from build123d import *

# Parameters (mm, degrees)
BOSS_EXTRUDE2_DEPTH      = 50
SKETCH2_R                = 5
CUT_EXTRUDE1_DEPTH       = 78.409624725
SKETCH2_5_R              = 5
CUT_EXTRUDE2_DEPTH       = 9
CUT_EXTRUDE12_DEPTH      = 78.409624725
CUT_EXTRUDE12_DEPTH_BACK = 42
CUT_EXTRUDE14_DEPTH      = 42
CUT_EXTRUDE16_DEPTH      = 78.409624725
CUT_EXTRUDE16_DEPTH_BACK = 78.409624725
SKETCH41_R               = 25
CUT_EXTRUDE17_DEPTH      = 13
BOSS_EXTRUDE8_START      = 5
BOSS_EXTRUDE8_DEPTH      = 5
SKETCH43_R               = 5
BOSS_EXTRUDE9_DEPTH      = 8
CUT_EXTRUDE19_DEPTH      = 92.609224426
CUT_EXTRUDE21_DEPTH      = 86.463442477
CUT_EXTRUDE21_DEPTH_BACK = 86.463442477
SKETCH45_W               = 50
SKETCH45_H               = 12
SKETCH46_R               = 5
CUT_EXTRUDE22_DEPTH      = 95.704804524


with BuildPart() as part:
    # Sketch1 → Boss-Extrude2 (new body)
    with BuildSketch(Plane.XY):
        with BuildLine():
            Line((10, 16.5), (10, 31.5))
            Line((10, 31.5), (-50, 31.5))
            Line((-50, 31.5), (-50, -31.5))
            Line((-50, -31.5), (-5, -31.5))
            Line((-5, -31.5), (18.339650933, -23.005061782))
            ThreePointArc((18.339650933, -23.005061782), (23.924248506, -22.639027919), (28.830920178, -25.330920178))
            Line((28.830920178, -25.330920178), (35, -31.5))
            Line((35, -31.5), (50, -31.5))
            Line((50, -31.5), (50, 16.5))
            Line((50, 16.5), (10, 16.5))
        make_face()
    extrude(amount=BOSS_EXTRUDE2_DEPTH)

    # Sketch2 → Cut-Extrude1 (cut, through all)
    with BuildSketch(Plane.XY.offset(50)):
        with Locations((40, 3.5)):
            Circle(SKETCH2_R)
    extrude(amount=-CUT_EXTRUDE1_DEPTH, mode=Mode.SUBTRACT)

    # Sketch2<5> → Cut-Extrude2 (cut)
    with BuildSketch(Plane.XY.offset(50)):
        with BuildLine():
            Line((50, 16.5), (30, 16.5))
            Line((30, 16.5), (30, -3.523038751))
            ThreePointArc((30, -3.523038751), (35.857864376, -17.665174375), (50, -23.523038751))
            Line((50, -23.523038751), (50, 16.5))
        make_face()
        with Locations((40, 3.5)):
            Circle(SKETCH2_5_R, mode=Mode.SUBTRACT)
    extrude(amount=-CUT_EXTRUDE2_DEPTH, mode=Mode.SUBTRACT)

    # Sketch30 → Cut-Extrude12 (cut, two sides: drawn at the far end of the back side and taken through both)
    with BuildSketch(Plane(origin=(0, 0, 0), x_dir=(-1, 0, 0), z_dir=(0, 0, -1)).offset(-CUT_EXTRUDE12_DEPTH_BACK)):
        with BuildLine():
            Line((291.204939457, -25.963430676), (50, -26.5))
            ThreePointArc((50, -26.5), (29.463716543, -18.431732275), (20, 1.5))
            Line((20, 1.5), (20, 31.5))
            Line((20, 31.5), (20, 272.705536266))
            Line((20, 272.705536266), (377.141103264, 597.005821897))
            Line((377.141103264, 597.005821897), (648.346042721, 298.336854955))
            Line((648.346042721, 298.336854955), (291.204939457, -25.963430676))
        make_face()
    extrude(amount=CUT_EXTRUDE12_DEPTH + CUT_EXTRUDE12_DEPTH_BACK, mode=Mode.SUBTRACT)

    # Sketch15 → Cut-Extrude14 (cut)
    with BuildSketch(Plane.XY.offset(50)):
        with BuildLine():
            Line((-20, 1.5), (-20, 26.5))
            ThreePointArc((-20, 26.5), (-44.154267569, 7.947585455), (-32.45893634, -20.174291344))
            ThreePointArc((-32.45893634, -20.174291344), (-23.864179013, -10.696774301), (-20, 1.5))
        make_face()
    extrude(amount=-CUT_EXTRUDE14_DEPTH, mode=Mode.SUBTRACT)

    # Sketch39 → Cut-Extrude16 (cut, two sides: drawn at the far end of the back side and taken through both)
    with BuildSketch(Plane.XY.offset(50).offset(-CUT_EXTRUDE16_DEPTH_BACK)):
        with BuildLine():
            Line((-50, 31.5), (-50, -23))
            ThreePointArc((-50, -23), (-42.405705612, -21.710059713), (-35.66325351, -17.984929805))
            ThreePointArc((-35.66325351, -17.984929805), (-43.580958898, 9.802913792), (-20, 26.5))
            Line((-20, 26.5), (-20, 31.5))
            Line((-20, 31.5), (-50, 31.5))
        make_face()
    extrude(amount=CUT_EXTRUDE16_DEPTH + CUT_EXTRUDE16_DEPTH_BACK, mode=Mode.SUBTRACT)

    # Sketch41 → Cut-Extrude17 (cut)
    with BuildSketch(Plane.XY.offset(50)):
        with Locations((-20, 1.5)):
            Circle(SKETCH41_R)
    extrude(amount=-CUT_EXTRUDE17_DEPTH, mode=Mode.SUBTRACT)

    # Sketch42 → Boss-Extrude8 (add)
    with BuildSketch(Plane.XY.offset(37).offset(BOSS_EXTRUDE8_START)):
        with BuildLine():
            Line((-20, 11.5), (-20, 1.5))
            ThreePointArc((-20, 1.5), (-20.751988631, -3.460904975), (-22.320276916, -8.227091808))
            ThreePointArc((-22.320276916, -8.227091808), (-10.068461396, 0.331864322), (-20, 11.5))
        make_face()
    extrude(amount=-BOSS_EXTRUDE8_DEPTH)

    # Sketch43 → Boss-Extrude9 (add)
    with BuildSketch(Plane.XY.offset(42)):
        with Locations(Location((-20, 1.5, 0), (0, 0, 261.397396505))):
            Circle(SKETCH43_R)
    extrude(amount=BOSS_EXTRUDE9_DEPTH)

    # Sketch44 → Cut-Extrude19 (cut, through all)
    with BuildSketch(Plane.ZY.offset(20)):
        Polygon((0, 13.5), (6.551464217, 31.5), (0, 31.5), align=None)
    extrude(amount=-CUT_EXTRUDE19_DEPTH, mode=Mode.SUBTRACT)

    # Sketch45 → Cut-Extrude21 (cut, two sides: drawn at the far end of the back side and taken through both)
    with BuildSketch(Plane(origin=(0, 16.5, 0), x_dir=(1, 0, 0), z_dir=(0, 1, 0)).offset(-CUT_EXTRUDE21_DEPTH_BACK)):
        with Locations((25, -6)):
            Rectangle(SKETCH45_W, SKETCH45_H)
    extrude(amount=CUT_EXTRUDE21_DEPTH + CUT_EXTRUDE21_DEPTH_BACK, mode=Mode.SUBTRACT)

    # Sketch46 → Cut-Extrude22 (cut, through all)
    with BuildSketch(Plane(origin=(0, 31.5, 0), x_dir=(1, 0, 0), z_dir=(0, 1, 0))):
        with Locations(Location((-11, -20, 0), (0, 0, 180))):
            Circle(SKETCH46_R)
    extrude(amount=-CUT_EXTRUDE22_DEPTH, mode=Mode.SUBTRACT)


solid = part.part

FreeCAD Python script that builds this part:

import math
import FreeCAD as App
import Part
import Sketcher

V = App.Vector
Q = App.Units.Quantity


def add_polygon(sketch, points):
    """Adds a closed chain of lines whose ends are joined by coincident constraints."""
    first, n = sketch.GeometryCount, len(points)
    for a, b in zip(points, points[1:] + points[:1]):
        sketch.addGeometry(Part.LineSegment(App.Vector(*a, 0), App.Vector(*b, 0)), False)
    for i in range(n):
        sketch.addConstraint(Sketcher.Constraint("Coincident", first + i, 2, first + (i + 1) % n, 1))

doc = App.newDocument("Part")
body = doc.addObject("PartDesign::Body", "Body")

# Sketch on XY plane
sketch1 = doc.addObject("Sketcher::SketchObject", "Sketch")
body.addObject(sketch1)
sketch1.AttachmentSupport = (doc.XY_Plane, [""])
sketch1.MapMode = "FlatFace"
sketch1.addGeometry([
    Part.LineSegment(V(10, 16.5, 0), V(10, 31.5, 0)),  # 0
    Part.LineSegment(V(10, 31.5, 0), V(-50, 31.5, 0)),  # 1
    Part.LineSegment(V(-50, 31.5, 0), V(-50, -31.5, 0)),  # 2
    Part.LineSegment(V(-50, -31.5, 0), V(-5, -31.5, 0)),  # 3
    Part.LineSegment(V(-5, -31.5, 0), V(18.339651, -23.005062, 0)),  # 4
    Part.ArcOfCircle(Part.Circle(V(21.759852, -32.401988, 0), V(0, 0, 1), 10), math.radians(45), math.radians(110)),  # 5
    Part.LineSegment(V(28.83092, -25.33092, 0), V(35, -31.5, 0)),  # 6
    Part.LineSegment(V(35, -31.5, 0), V(50, -31.5, 0)),  # 7
    Part.LineSegment(V(50, -31.5, 0), V(50, 16.5, 0)),  # 8
    Part.LineSegment(V(50, 16.5, 0), V(10, 16.5, 0)),  # 9
], False)
sketch1.addConstraint([
    Sketcher.Constraint("Coincident", 0, 2, 1, 1),
    Sketcher.Constraint("Coincident", 1, 2, 2, 1),
    Sketcher.Constraint("Coincident", 2, 2, 3, 1),
    Sketcher.Constraint("Coincident", 3, 2, 4, 1),
    Sketcher.Constraint("Tangent", 4, 2, 5, 2),
    Sketcher.Constraint("Tangent", 5, 1, 6, 1),
    Sketcher.Constraint("Coincident", 6, 2, 7, 1),
    Sketcher.Constraint("Coincident", 7, 2, 8, 1),
    Sketcher.Constraint("Coincident", 8, 2, 9, 1),
    Sketcher.Constraint("Coincident", 9, 2, 0, 1),
    Sketcher.Constraint("Vertical", 0),
    Sketcher.Constraint("Horizontal", 1),
    Sketcher.Constraint("Vertical", 2),
    Sketcher.Constraint("Horizontal", 3),
    Sketcher.Constraint("Horizontal", 7),
    Sketcher.Constraint("Vertical", 8),
    Sketcher.Constraint("Horizontal", 9),
    Sketcher.Constraint("Symmetric", 1, 2, 7, 2, -1, 1),
    Sketcher.Constraint("Horizontal", 3, 2, 6, 2),
    Sketcher.Constraint("Equal", 7, 0),
    Sketcher.Constraint("Radius", 5, 10.0),
    Sketcher.Constraint("DistanceX", 1, 2, 1, 1, 60.0),
    Sketcher.Constraint("DistanceX", 3, 1, 3, 2, 45.0),
    Sketcher.Constraint("DistanceX", 7, 1, 7, 2, 15.0),
    Sketcher.Constraint("DistanceX", 9, 2, 9, 1, 40.0),
    Sketcher.Constraint("DistanceY", 2, 2, 2, 1, 63.0),
    Sketcher.Constraint("Angle", 4, Q("20 deg")),
    Sketcher.Constraint("Angle", 6, Q("-45 deg")),
])
pad1 = doc.addObject("PartDesign::Pad", "Pad")
body.addObject(pad1)
pad1.Profile = sketch1
pad1.Length = 50

# Sketch on XY plane
sketch2 = doc.addObject("Sketcher::SketchObject", "Sketch001")
body.addObject(sketch2)
sketch2.AttachmentSupport = (doc.XY_Plane, [""])
sketch2.MapMode = "FlatFace"
sketch2.AttachmentOffset = App.Placement(V(0, 0, 50), App.Rotation())
sketch2.addGeometry(Part.Circle(V(40, 3.5, 0), V(0, 0, 1), 5), False)
sketch2.addConstraint([
    Sketcher.Constraint("Diameter", 0, 10.0),
    Sketcher.Constraint("DistanceX", -1, 1, 0, 3, 40.0),
    Sketcher.Constraint("DistanceY", -1, 1, 0, 3, 3.5),
])
pocket1 = doc.addObject("PartDesign::Pocket", "Pocket")
body.addObject(pocket1)
pocket1.Profile = sketch2
pocket1.Type = "ThroughAll"

# Sketch on XY plane
sketch3 = doc.addObject("Sketcher::SketchObject", "Sketch002")
body.addObject(sketch3)
sketch3.AttachmentSupport = (doc.XY_Plane, [""])
sketch3.MapMode = "FlatFace"
sketch3.AttachmentOffset = App.Placement(V(0, 0, 50), App.Rotation())
sketch3.addGeometry([
    Part.LineSegment(V(50, 16.5, 0), V(30, 16.5, 0)),  # 0
    Part.LineSegment(V(30, 16.5, 0), V(30, -3.523039, 0)),  # 1
    Part.ArcOfCircle(Part.Circle(V(50, -3.523039, 0), V(0, 0, 1), 20), math.radians(180), math.radians(270)),  # 2
    Part.LineSegment(V(50, -23.523039, 0), V(50, 16.5, 0)),  # 3
    Part.Circle(V(40, 3.5, 0), V(0, 0, 1), 5),  # 4
], False)
sketch3.addConstraint([
    Sketcher.Constraint("Coincident", 0, 2, 1, 1),
    Sketcher.Constraint("Tangent", 1, 2, 2, 1),
    Sketcher.Constraint("Coincident", 2, 2, 3, 1),
    Sketcher.Constraint("Coincident", 3, 2, 0, 1),
    Sketcher.Constraint("Horizontal", 0),
    Sketcher.Constraint("Vertical", 1),
    Sketcher.Constraint("Vertical", 3),
    Sketcher.Constraint("Diameter", 4, 10.0),
    Sketcher.Constraint("Radius", 2, 20.0),
    Sketcher.Constraint("DistanceX", 0, 2, 0, 1, 20.0),
    Sketcher.Constraint("DistanceX", -1, 1, 2, 3, 50.0),
    Sketcher.Constraint("DistanceX", -1, 1, 4, 3, 40.0),
    Sketcher.Constraint("DistanceY", 4, 3, 0, 2, 13.0),
    Sketcher.Constraint("DistanceY", -1, 1, 4, 3, 3.5),
    Sketcher.Constraint("DistanceY", 1, 2, 1, 1, 20.023039),
])
pocket2 = doc.addObject("PartDesign::Pocket", "Pocket001")
body.addObject(pocket2)
pocket2.Profile = sketch3
pocket2.Length = 9

# Sketch on XY plane
sketch4 = doc.addObject("Sketcher::SketchObject", "Sketch003")
body.addObject(sketch4)
sketch4.AttachmentSupport = (doc.XY_Plane, [""])
sketch4.MapMode = "FlatFace"
sketch4.addGeometry([
    Part.LineSegment(V(-50, -26.5, 0), V(-291.204939, -25.963431, 0)),  # 0
    Part.LineSegment(V(-291.204939, -25.963431, 0), V(-648.346043, 298.336855, 0)),  # 1
    Part.LineSegment(V(-648.346043, 298.336855, 0), V(-377.141103, 597.005822, 0)),  # 2
    Part.LineSegment(V(-377.141103, 597.005822, 0), V(-20, 272.705536, 0)),  # 3
    Part.LineSegment(V(-20, 272.705536, 0), V(-20, 1.5, 0)),  # 4
    Part.ArcOfCircle(Part.Circle(V(-49.933264, 3.499926, 0), V(0, 0, 1), 30), math.radians(-90.127456), math.radians(-3.822412)),  # 5
], False)
sketch4.addConstraint([
    Sketcher.Constraint("Coincident", 0, 2, 1, 1),
    Sketcher.Constraint("Coincident", 1, 2, 2, 1),
    Sketcher.Constraint("Coincident", 2, 2, 3, 1),
    Sketcher.Constraint("Coincident", 3, 2, 4, 1),
    Sketcher.Constraint("Coincident", 4, 2, 5, 2),
    Sketcher.Constraint("Tangent", 5, 1, 0, 1),
    Sketcher.Constraint("Vertical", 4),
    Sketcher.Constraint("Perpendicular", 1, 2),
    Sketcher.Constraint("Perpendicular", 2, 3),
    Sketcher.Constraint("Equal", 1, 3),
    Sketcher.Constraint("Radius", 5, 30.0),
    Sketcher.Constraint("DistanceX", 3, 2, -1, 1, 20.0),
    Sketcher.Constraint("DistanceX", 5, 1, -1, 1, 50.0),
    Sketcher.Constraint("DistanceY", 5, 1, 4, 2, 28.0),
    Sketcher.Constraint("DistanceY", -1, 1, 4, 2, 1.5),
    Sketcher.Constraint("DistanceY", 4, 2, 4, 1, 271.205536),
    Sketcher.Constraint("DistanceX", 0, 2, -1, 1, 291.204939),
    Sketcher.Constraint("DistanceY", -1, 1, 2, 2, 597.005822),
])
pocket3 = doc.addObject("PartDesign::Pocket", "Pocket002")
body.addObject(pocket3)
pocket3.Profile = sketch4
pocket3.Type = "TwoLengths"
pocket3.Length = 78.409625
pocket3.Length2 = 42

# Sketch on XY plane
sketch5 = doc.addObject("Sketcher::SketchObject", "Sketch004")
body.addObject(sketch5)
sketch5.AttachmentSupport = (doc.XY_Plane, [""])
sketch5.MapMode = "FlatFace"
sketch5.AttachmentOffset = App.Placement(V(0, 0, 50), App.Rotation())
sketch5.addGeometry([
    Part.LineSegment(V(-20, 1.5, 0), V(-20, 26.5, 0)),
    Part.ArcOfCircle(Part.Circle(V(-20, 1.5, 0), V(0, 0, 1), 25), math.radians(90), math.radians(240.108611)),
    Part.ArcOfCircle(Part.Circle(V(-49.873329, 4.253949, 0), V(0, 0, 1), 30), math.radians(-54.515708), math.radians(-5.267071)),
], False)
sketch5.addConstraint([
    Sketcher.Constraint("Coincident", 0, 2, 1, 1),
    Sketcher.Constraint("Coincident", 1, 2, 2, 1),
    Sketcher.Constraint("Coincident", 2, 2, 0, 1),
    Sketcher.Constraint("Vertical", 0),
    Sketcher.Constraint("Coincident", 2, 2, 1, 3),
    Sketcher.Constraint("Radius", 1, 25.0),
    Sketcher.Constraint("Radius", 2, 30.0),
    Sketcher.Constraint("DistanceX", 1, 3, -1, 1, 20.0),
    Sketcher.Constraint("DistanceY", -1, 1, 1, 3, 1.5),
    Sketcher.Constraint("DistanceX", 2, 3, -1, 1, 49.873329),
])
pocket4 = doc.addObject("PartDesign::Pocket", "Pocket003")
body.addObject(pocket4)
pocket4.Profile = sketch5
pocket4.Length = 42

# Sketch on XY plane
sketch6 = doc.addObject("Sketcher::SketchObject", "Sketch005")
body.addObject(sketch6)
sketch6.AttachmentSupport = (doc.XY_Plane, [""])
sketch6.MapMode = "FlatFace"
sketch6.AttachmentOffset = App.Placement(V(0, 0, 50), App.Rotation())
sketch6.addGeometry([
    Part.LineSegment(V(-50, 31.5, 0), V(-50, -23, 0)),  # 0
    Part.ArcOfCircle(Part.Circle(V(-50, 0, 0), V(0, 0, 1), 23), math.radians(-90), math.radians(-51.439783)),  # 1
    Part.ArcOfCircle(Part.Circle(V(-20, 1.5, 0), V(0, 0, 1), 25), math.radians(90), math.radians(231.205416)),  # 2
    Part.LineSegment(V(-20, 26.5, 0), V(-20, 31.5, 0)),  # 3
    Part.LineSegment(V(-20, 31.5, 0), V(-50, 31.5, 0)),  # 4
], False)
sketch6.addConstraint([
    Sketcher.Constraint("Coincident", 0, 2, 1, 1),
    Sketcher.Constraint("Coincident", 1, 2, 2, 2),
    Sketcher.Constraint("Coincident", 2, 1, 3, 1),
    Sketcher.Constraint("Coincident", 3, 2, 4, 1),
    Sketcher.Constraint("Coincident", 4, 2, 0, 1),
    Sketcher.Constraint("Vertical", 0),
    Sketcher.Constraint("Vertical", 3),
    Sketcher.Constraint("Horizontal", 4),
    Sketcher.Constraint("PointOnObject", 1, 3, -1),
    Sketcher.Constraint("Vertical", 1, 3, 0, 2),
    Sketcher.Constraint("Radius", 1, 23.0),
    Sketcher.Constraint("Radius", 2, 25.0),
    Sketcher.Constraint("DistanceX", 4, 2, 4, 1, 30.0),
    Sketcher.Constraint("DistanceY", 3, 1, 3, 2, 5.0),
    Sketcher.Constraint("DistanceY", 0, 2, 0, 1, 54.5),
    Sketcher.Constraint("DistanceX", 1, 3, -1, 1, 50.0),
    Sketcher.Constraint("DistanceX", 2, 3, -1, 1, 20.0),
])
pocket5 = doc.addObject("PartDesign::Pocket", "Pocket004")
body.addObject(pocket5)
pocket5.Profile = sketch6
pocket5.Type = "ThroughAll"
pocket5.Midplane = True

# Sketch on XY plane
sketch7 = doc.addObject("Sketcher::SketchObject", "Sketch006")
body.addObject(sketch7)
sketch7.AttachmentSupport = (doc.XY_Plane, [""])
sketch7.MapMode = "FlatFace"
sketch7.AttachmentOffset = App.Placement(V(0, 0, 50), App.Rotation())
sketch7.addGeometry(Part.Circle(V(-20, 1.5, 0), V(0, 0, 1), 25), False)
sketch7.addConstraint([
    Sketcher.Constraint("Diameter", 0, 50.0),
    Sketcher.Constraint("DistanceX", 0, 3, -1, 1, 20.0),
    Sketcher.Constraint("DistanceY", -1, 1, 0, 3, 1.5),
])
pocket6 = doc.addObject("PartDesign::Pocket", "Pocket005")
body.addObject(pocket6)
pocket6.Profile = sketch7
pocket6.Length = 13

# Sketch on XY plane
sketch8 = doc.addObject("Sketcher::SketchObject", "Sketch007")
body.addObject(sketch8)
sketch8.AttachmentSupport = (doc.XY_Plane, [""])
sketch8.MapMode = "FlatFace"
sketch8.AttachmentOffset = App.Placement(V(0, 0, 42), App.Rotation())
sketch8.addGeometry([
    Part.LineSegment(V(-20, 11.5, 0), V(-20, 1.5, 0)),
    Part.ArcOfCircle(Part.Circle(V(-49.933264, 3.499926, 0), V(0, 0, 1), 30), math.radians(-23.010548), math.radians(-3.822412)),
    Part.ArcOfCircle(Part.Circle(V(-20, 1.5, 0), V(0, 0, 1), 10), math.radians(-103.41648), math.radians(90)),
], False)
sketch8.addConstraint([
    Sketcher.Constraint("Coincident", 0, 2, 1, 2),
    Sketcher.Constraint("Coincident", 1, 1, 2, 1),
    Sketcher.Constraint("Coincident", 2, 2, 0, 1),
    Sketcher.Constraint("Vertical", 0),
    Sketcher.Constraint("Coincident", 0, 2, 2, 3),
    Sketcher.Constraint("Radius", 1, 30.0),
    Sketcher.Constraint("Radius", 2, 10.0),
    Sketcher.Constraint("DistanceX", 2, 3, -1, 1, 20.0),
    Sketcher.Constraint("DistanceY", -1, 1, 2, 3, 1.5),
    Sketcher.Constraint("DistanceY", 1, 1, -1, 1, 8.227092),
])
pad2 = doc.addObject("PartDesign::Pad", "Pad001")
body.addObject(pad2)
pad2.Profile = sketch8
pad2.Length = 5
pad2.Reversed = True

# Sketch on XY plane
sketch9 = doc.addObject("Sketcher::SketchObject", "Sketch008")
body.addObject(sketch9)
sketch9.AttachmentSupport = (doc.XY_Plane, [""])
sketch9.MapMode = "FlatFace"
sketch9.AttachmentOffset = App.Placement(V(0, 0, 42), App.Rotation())
sketch9.addGeometry(Part.Circle(V(-20, 1.5, 0), V(0, 0, 1), 5), False)
sketch9.addConstraint([
    Sketcher.Constraint("Diameter", 0, 10.0),
    Sketcher.Constraint("DistanceX", 0, 3, -1, 1, 20.0),
    Sketcher.Constraint("DistanceY", -1, 1, 0, 3, 1.5),
])
pad3 = doc.addObject("PartDesign::Pad", "Pad002")
body.addObject(pad3)
pad3.Profile = sketch9
pad3.Length = 8

# Sketch on YZ plane
sketch10 = doc.addObject("Sketcher::SketchObject", "Sketch009")
body.addObject(sketch10)
sketch10.AttachmentSupport = (doc.YZ_Plane, [""])
sketch10.MapMode = "FlatFace"
sketch10.AttachmentOffset = App.Placement(V(0, 0, -20), App.Rotation())
add_polygon(sketch10, [(13.5, 0), (31.5, 6.551464), (31.5, 0)])  # lines 0-2
sketch10.addConstraint([
    Sketcher.Constraint("Vertical", 1),
    Sketcher.Constraint("Horizontal", 2),
    Sketcher.Constraint("PointOnObject", 1, 2, -1),
    Sketcher.Constraint("DistanceX", 2, 2, 2, 1, 18.0),
    Sketcher.Constraint("Angle", 0, Q("20 deg")),
    Sketcher.Constraint("DistanceX", -1, 1, 0, 2, 31.5),
])
pocket7 = doc.addObject("PartDesign::Pocket", "Pocket006")
body.addObject(pocket7)
pocket7.Profile = sketch10
pocket7.Type = "ThroughAll"
pocket7.Reversed = True

# Sketch on XZ plane
sketch11 = doc.addObject("Sketcher::SketchObject", "Sketch010")
body.addObject(sketch11)
sketch11.AttachmentSupport = (doc.XZ_Plane, [""])
sketch11.MapMode = "FlatFace"
sketch11.AttachmentOffset = App.Placement(V(0, 0, -16.5), App.Rotation())
add_polygon(sketch11, [(0, 0), (0, 12), (50, 12), (50, 0)])  # lines 0-3
sketch11.addConstraint([
    Sketcher.Constraint("Vertical", 0),
    Sketcher.Constraint("Horizontal", 1),
    Sketcher.Constraint("Vertical", 2),
    Sketcher.Constraint("Horizontal", 3),
    Sketcher.Constraint("Coincident", 3, 2, -1, 1),
    Sketcher.Constraint("DistanceX", 1, 1, 1, 2, 50.0),
    Sketcher.Constraint("DistanceY", 0, 1, 0, 2, 12.0),
])
pocket8 = doc.addObject("PartDesign::Pocket", "Pocket007")
body.addObject(pocket8)
pocket8.Profile = sketch11
pocket8.Type = "ThroughAll"
pocket8.Midplane = True

# Sketch on XZ plane
sketch12 = doc.addObject("Sketcher::SketchObject", "Sketch011")
body.addObject(sketch12)
sketch12.AttachmentSupport = (doc.XZ_Plane, [""])
sketch12.MapMode = "FlatFace"
sketch12.AttachmentOffset = App.Placement(V(0, 0, -31.5), App.Rotation())
sketch12.addGeometry(Part.Circle(V(-11, 20, 0), V(0, 0, 1), 5), False)
sketch12.addConstraint([
    Sketcher.Constraint("Diameter", 0, 10.0),
    Sketcher.Constraint("DistanceX", 0, 3, -1, 1, 11.0),
    Sketcher.Constraint("DistanceY", -1, 1, 0, 3, 20.0),
])
pocket9 = doc.addObject("PartDesign::Pocket", "Pocket008")
body.addObject(pocket9)
pocket9.Profile = sketch12
pocket9.Type = "ThroughAll"
pocket9.Reversed = True

doc.recompute()
